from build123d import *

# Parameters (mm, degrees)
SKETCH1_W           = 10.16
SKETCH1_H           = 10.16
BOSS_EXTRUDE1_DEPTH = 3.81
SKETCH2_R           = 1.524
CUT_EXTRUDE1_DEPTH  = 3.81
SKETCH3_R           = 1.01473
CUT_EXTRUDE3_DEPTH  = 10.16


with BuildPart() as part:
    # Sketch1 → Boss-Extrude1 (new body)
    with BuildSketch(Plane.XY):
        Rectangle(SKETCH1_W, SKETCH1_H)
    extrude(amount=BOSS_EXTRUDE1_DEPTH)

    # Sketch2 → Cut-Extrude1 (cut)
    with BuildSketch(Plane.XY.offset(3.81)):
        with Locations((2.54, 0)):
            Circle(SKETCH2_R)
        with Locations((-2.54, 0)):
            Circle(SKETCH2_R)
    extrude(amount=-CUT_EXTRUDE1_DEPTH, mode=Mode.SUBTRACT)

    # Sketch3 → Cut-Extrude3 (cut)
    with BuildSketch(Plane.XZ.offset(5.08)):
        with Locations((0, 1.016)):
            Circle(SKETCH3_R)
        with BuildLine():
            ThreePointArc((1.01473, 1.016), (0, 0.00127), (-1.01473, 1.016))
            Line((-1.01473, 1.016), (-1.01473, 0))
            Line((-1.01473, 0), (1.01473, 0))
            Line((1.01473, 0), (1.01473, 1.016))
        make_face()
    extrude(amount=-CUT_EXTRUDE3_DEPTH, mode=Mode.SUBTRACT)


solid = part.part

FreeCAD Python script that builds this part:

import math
import FreeCAD as App
import Part
import Sketcher
from FreeCAD import Vector
Q = App.Units.Quantity


def add_polygon(sketch, points):
    """Adds a closed chain of lines whose ends are joined by coincident constraints."""
    first, n = sketch.GeometryCount, len(points)
    for a, b in zip(points, points[1:] + points[:1]):
        sketch.addGeometry(Part.LineSegment(App.Vector(*a, 0), App.Vector(*b, 0)), False)
    for i in range(n):
        sketch.addConstraint(Sketcher.Constraint("Coincident", first + i, 2, first + (i + 1) % n, 1))

doc = App.newDocument("Part")
body = doc.addObject("PartDesign::Body", "Body")

# Sketch on XY plane
sketch1 = body.newObject("Sketcher::SketchObject", "Sketch")
sketch1.AttachmentSupport = (doc.getObject("XY_Plane"), [""])
sketch1.MapMode = "FlatFace"
add_polygon(sketch1, [(-5, 5), (-5, -5), (5, -5), (5, 5)])  # lines 0-3
sketch1.addConstraint([
    Sketcher.Constraint("Vertical", 0),
    Sketcher.Constraint("Horizontal", 1),
    Sketcher.Constraint("Vertical", 2),
    Sketcher.Constraint("Horizontal", 3),
    Sketcher.Constraint("Symmetric", 0, 2, 2, 2, -1, 1),
    Sketcher.Constraint("Equal", 3, 0),
    Sketcher.Constraint("DistanceX", 1, 1, 1, 2, Q("0.4 in")),
])
pad1 = body.newObject("PartDesign::Pad", "Pad")
pad1.Profile = sketch1
pad1.Length = Q("0.15 in")

# Sketch on XY plane
sketch2 = body.newObject("Sketcher::SketchObject", "Sketch001")
sketch2.AttachmentSupport = (doc.getObject("XY_Plane"), [""])
sketch2.MapMode = "FlatFace"
sketch2.AttachmentOffset = App.Placement(Vector(0, 0, 0.15 * 25.4), App.Rotation())
sketch2.addGeometry([
    Part.Circle(Vector(2.5, 0, 0), Vector(0, 0, 1), 1.5),
    Part.Circle(Vector(-2.5, 0, 0), Vector(0, 0, 1), 1.5),
], False)
sketch2.addConstraint([
    Sketcher.Constraint("Equal", 0, 1),
    Sketcher.Constraint("Symmetric", 0, 3, 1, 3, -1, 1),
    Sketcher.Constraint("PointOnObject", 0, 3, -1),
    Sketcher.Constraint("Diameter", 0, Q("0.12 in")),
    Sketcher.Constraint("DistanceX", -1, 1, 0, 3, Q("0.1 in")),
])
pocket1 = body.newObject("PartDesign::Pocket", "Pocket")
pocket1.Profile = sketch2
pocket1.Length = Q("0.15 in")

# Sketch on XZ plane
sketch3 = body.newObject("Sketcher::SketchObject", "Sketch002")
sketch3.AttachmentSupport = (doc.getObject("XZ_Plane"), [""])
sketch3.MapMode = "FlatFace"
sketch3.AttachmentOffset = App.Placement(Vector(0, 0, 0.2 * 25.4), App.Rotation())
sketch3.addGeometry([
    Part.ArcOfCircle(Part.Circle(Vector(0, 1, 0), Vector(0, 0, 1), 1), math.radians(0), math.radians(180)),
    Part.LineSegment(Vector(-1, 1, 0), Vector(-1, 0, 0)),
    Part.LineSegment(Vector(-1, 0, 0), Vector(1, 0, 0)),
    Part.LineSegment(Vector(1, 0, 0), Vector(1, 1, 0)),
], False)
sketch3.addConstraint([
    Sketcher.Constraint("Tangent", 0, 2, 1, 1),
    Sketcher.Constraint("Coincident", 1, 2, 2, 1),
    Sketcher.Constraint("Coincident", 2, 2, 3, 1),
    Sketcher.Constraint("Tangent", 3, 2, 0, 1),
    Sketcher.Constraint("Vertical", 1),
    Sketcher.Constraint("Horizontal", 2),
    Sketcher.Constraint("Vertical", 3),
    Sketcher.Constraint("Symmetric", 1, 2, 2, 2, -1, 1),
    Sketcher.Constraint("DistanceY", 1, 2, 1, 1, Q("0.04 in")),
    Sketcher.Constraint("DistanceX", 2, 1, 2, 2, Q("0.0799 in")),
])
pocket2 = body.newObject("PartDesign::Pocket", "Pocket001")
pocket2.Profile = sketch3
pocket2.Length = Q("0.4 in")

doc.recompute()
